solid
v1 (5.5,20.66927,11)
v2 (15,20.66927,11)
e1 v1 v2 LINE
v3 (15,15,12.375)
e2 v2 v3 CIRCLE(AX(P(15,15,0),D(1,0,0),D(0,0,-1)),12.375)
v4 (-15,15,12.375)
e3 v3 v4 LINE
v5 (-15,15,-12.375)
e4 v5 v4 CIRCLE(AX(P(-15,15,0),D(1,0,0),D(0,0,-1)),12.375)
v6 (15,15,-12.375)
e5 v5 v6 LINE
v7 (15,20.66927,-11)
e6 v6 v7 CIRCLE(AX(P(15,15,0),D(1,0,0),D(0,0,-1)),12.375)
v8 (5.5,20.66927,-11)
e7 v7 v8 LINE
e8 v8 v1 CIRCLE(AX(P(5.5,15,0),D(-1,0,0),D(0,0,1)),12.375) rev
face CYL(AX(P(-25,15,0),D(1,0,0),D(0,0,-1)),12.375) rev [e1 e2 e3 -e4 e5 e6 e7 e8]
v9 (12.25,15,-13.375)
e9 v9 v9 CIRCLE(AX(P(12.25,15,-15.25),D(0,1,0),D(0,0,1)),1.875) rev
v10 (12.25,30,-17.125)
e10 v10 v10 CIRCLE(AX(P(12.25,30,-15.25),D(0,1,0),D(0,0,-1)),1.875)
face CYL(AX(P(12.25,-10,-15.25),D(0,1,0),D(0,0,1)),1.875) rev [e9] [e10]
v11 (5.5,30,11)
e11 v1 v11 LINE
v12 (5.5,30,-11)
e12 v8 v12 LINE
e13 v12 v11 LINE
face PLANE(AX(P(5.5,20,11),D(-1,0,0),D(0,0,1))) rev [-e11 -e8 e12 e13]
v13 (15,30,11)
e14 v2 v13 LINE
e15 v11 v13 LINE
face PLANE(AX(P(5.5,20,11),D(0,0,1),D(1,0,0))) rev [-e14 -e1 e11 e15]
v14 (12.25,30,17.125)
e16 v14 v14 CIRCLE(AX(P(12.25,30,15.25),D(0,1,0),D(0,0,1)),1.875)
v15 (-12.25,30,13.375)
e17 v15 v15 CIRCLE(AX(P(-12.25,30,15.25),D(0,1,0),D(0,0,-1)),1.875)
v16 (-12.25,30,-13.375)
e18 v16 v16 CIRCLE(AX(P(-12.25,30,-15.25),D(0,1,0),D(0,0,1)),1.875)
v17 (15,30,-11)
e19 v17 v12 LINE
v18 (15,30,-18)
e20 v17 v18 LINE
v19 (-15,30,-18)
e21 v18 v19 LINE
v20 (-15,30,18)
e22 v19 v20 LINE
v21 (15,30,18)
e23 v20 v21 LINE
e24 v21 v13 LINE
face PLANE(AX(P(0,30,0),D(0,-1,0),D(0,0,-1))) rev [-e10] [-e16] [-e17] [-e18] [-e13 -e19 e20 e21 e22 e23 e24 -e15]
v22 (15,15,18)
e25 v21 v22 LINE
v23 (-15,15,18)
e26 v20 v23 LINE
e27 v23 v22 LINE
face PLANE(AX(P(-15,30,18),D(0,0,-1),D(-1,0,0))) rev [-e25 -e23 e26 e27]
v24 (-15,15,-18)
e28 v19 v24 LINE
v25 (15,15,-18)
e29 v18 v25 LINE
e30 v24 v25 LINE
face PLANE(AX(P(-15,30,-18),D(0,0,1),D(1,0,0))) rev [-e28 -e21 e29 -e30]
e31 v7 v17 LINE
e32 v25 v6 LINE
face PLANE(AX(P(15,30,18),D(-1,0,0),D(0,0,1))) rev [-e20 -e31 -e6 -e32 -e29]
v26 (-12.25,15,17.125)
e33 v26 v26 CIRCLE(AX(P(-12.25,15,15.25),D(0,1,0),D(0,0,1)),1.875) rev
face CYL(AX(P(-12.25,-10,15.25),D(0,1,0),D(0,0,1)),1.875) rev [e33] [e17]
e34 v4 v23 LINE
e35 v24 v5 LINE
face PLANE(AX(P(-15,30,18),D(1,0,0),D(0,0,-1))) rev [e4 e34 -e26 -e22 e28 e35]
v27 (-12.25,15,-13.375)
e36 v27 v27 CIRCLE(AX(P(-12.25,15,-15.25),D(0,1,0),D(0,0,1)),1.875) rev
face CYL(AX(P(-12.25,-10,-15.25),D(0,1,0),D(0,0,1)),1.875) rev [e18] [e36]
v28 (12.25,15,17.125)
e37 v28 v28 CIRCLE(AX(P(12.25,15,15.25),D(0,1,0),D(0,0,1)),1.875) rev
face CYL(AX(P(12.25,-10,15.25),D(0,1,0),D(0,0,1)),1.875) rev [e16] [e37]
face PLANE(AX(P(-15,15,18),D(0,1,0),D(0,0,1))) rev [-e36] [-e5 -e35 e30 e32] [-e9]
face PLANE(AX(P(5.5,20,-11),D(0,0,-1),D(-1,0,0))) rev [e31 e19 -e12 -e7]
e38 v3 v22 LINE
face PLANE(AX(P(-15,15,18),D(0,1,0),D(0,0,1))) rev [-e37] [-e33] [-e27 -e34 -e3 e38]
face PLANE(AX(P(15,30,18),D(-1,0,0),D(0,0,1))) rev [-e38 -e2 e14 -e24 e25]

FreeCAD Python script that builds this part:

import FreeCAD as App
import Part
import Sketcher
from FreeCAD import Vector


def add_polygon(sketch, points):
    """Adds a closed chain of lines whose ends are joined by coincident constraints."""
    first, n = sketch.GeometryCount, len(points)
    for a, b in zip(points, points[1:] + points[:1]):
        sketch.addGeometry(Part.LineSegment(App.Vector(*a, 0), App.Vector(*b, 0)), False)
    for i in range(n):
        sketch.addConstraint(Sketcher.Constraint("Coincident", first + i, 2, first + (i + 1) % n, 1))

doc = App.newDocument("Part")
body = doc.addObject("PartDesign::Body", "Body")

sketch1 = doc.addObject("Sketcher::SketchObject", "Sketch")
body.addObject(sketch1)
sketch1.AttachmentSupport = (doc.XZ_Plane, [""])
sketch1.MapMode = "FlatFace"
add_polygon(sketch1, [(-15, -18), (-15, 18), (15, 18), (15, -18)])
sketch1.addConstraint(Sketcher.Constraint("Vertical", 0))
sketch1.addConstraint(Sketcher.Constraint("Horizontal", 1))
sketch1.addConstraint(Sketcher.Constraint("Vertical", 2))
sketch1.addConstraint(Sketcher.Constraint("Horizontal", 3))
sketch1.addConstraint(Sketcher.Constraint("Symmetric", 0, 2, 2, 2, -1, 1))
sketch1.addConstraint(Sketcher.Constraint("DistanceX", 1, 1, 1, 2, 30.0))
sketch1.addConstraint(Sketcher.Constraint("DistanceY", 0, 1, 0, 2, 36.0))
pad1 = doc.addObject("PartDesign::Pad", "Pad")
body.addObject(pad1)
pad1.Profile = sketch1
pad1.Length = 30
pad1.Reversed = True

sketch2 = doc.addObject("Sketcher::SketchObject", "Sketch001")
body.addObject(sketch2)
sketch2.AttachmentSupport = (doc.YZ_Plane, [""])
sketch2.MapMode = "FlatFace"
sketch2.AttachmentOffset = App.Placement(Vector(0, 0, 15), App.Rotation())
sketch2.addGeometry(Part.Circle(Vector(15, 0, 0), Vector(0, 0, 1), 12.375), False)
sketch2.addConstraint(Sketcher.Constraint("PointOnObject", 0, 3, -1))
sketch2.addConstraint(Sketcher.Constraint("Diameter", 0, 24.75))
sketch2.addConstraint(Sketcher.Constraint("DistanceX", -1, 1, 0, 3, 15.0))
pocket1 = doc.addObject("PartDesign::Pocket", "Pocket")
body.addObject(pocket1)
pocket1.Profile = sketch2
pocket1.Length = 40

sketch3 = doc.addObject("Sketcher::SketchObject", "Sketch002")
body.addObject(sketch3)
sketch3.AttachmentSupport = (doc.XZ_Plane, [""])
sketch3.MapMode = "FlatFace"
sketch3.AttachmentOffset = App.Placement(Vector(0, 0, -30), App.Rotation())
sketch3.addGeometry(Part.Circle(Vector(-12.25, -15.25, 0), Vector(0, 0, 1), 1.875), False)
sketch3.addGeometry(Part.Circle(Vector(-12.25, 15.25, 0), Vector(0, 0, 1), 1.875), False)
sketch3.addGeometry(Part.Circle(Vector(12.25, 15.25, 0), Vector(0, 0, 1), 1.875), False)
sketch3.addGeometry(Part.Circle(Vector(12.25, -15.25, 0), Vector(0, 0, 1), 1.875), False)
sketch3.addConstraint(Sketcher.Constraint("Equal", 0, 1))
sketch3.addConstraint(Sketcher.Constraint("Equal", 1, 2))
sketch3.addConstraint(Sketcher.Constraint("Equal", 2, 3))
sketch3.addConstraint(Sketcher.Constraint("Symmetric", 0, 3, 2, 3, -1, 1))
sketch3.addConstraint(Sketcher.Constraint("Symmetric", 1, 3, 3, 3, -1, 1))
sketch3.addConstraint(Sketcher.Constraint("Symmetric", 1, 3, 2, 3, -2))
sketch3.addConstraint(Sketcher.Constraint("Diameter", 0, 3.75))
sketch3.addConstraint(Sketcher.Constraint("DistanceY", 0, 3, 1, 3, 30.5))
sketch3.addConstraint(Sketcher.Constraint("DistanceX", 1, 3, 2, 3, 24.5))
pocket2 = doc.addObject("PartDesign::Pocket", "Pocket001")
body.addObject(pocket2)
pocket2.Profile = sketch3
pocket2.Length = 40
pocket2.Reversed = True

sketch4 = doc.addObject("Sketcher::SketchObject", "Sketch003")
body.addObject(sketch4)
sketch4.AttachmentSupport = (doc.YZ_Plane, [""])
sketch4.MapMode = "FlatFace"
sketch4.AttachmentOffset = App.Placement(Vector(0, 0, 15), App.Rotation())
add_polygon(sketch4, [(15, 18), (0, 18), (0, -18), (15, -18)])
sketch4.addConstraint(Sketcher.Constraint("Horizontal", 0))
sketch4.addConstraint(Sketcher.Constraint("Vertical", 1))
sketch4.addConstraint(Sketcher.Constraint("Horizontal", 2))
sketch4.addConstraint(Sketcher.Constraint("Vertical", 3))
sketch4.addConstraint(Sketcher.Constraint("Symmetric", 0, 2, 1, 2, -1, 1))
sketch4.addConstraint(Sketcher.Constraint("DistanceX", 0, 2, 0, 1, 15.0))
sketch4.addConstraint(Sketcher.Constraint("DistanceY", 1, 2, 1, 1, 36.0))
pocket3 = doc.addObject("PartDesign::Pocket", "Pocket002")
body.addObject(pocket3)
pocket3.Profile = sketch4
pocket3.Type = "ThroughAll"

sketch5 = doc.addObject("Sketcher::SketchObject", "Sketch004")
body.addObject(sketch5)
sketch5.AttachmentSupport = (doc.XZ_Plane, [""])
sketch5.MapMode = "FlatFace"
sketch5.AttachmentOffset = App.Placement(Vector(0, 0, -30), App.Rotation())
add_polygon(sketch5, [(5.5, -11), (5.5, 11), (15, 11), (15, -11)])
sketch5.addConstraint(Sketcher.Constraint("Vertical", 0))
sketch5.addConstraint(Sketcher.Constraint("Horizontal", 1))
sketch5.addConstraint(Sketcher.Constraint("Vertical", 2))
sketch5.addConstraint(Sketcher.Constraint("Horizontal", 3))
sketch5.addConstraint(Sketcher.Constraint("DistanceY", 0, 1, 0, 2, 22.0))
sketch5.addConstraint(Sketcher.Constraint("DistanceX", 1, 1, 1, 2, 9.5))
sketch5.addConstraint(Sketcher.Constraint("DistanceY", -1, 1, 0, 2, 11.0))
sketch5.addConstraint(Sketcher.Constraint("DistanceX", -1, 1, 1, 2, 15.0))
pocket4 = doc.addObject("PartDesign::Pocket", "Pocket003")
body.addObject(pocket4)
pocket4.Profile = sketch5
pocket4.Length = 10
pocket4.Reversed = True

doc.recompute()
